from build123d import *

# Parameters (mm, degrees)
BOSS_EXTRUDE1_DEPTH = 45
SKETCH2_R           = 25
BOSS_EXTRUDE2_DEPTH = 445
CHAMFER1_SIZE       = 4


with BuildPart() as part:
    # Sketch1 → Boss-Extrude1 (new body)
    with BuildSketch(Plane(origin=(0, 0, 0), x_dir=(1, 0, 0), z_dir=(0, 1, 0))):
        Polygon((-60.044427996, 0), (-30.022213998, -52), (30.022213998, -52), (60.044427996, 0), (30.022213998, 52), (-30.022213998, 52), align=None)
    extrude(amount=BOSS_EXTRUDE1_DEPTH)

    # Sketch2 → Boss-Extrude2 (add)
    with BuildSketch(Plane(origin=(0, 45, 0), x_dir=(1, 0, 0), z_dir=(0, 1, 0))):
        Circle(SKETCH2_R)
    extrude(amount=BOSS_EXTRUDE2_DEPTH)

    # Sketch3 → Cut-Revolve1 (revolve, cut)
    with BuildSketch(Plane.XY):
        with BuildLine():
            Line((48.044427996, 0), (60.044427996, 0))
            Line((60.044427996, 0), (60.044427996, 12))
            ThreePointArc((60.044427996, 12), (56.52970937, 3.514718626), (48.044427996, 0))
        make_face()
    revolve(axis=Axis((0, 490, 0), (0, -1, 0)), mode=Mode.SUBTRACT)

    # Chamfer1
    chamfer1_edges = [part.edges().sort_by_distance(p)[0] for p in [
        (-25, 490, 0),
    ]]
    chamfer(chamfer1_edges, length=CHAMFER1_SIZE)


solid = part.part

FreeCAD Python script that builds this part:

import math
import FreeCAD as App
import Part
import Sketcher

V = App.Vector
Q = App.Units.Quantity


def edges_at(feature, points):
    """Names of the edges that pass closest to the given points."""
    edges = feature.Shape.Edges
    near = lambda p: min(range(len(edges)), key=lambda i: edges[i].distToShape(Part.Vertex(*p))[0])
    return sorted({f"Edge{near(p) + 1}" for p in points})

doc = App.newDocument("Part")
params = doc.addObject("Spreadsheet::Sheet", "Params")
for row, (alias, value) in enumerate([
    ("pad1_length", "45 mm"),
    ("sketch2_diameter", "50 mm"),
    ("pad2_length", "445 mm"),
    ("sketch3_radius", "12 mm"),
    ("groove_angle", "360 deg"),
    ("chamfer_size", "4 mm"),
], start=1):
    params.set(f"A{row}", alias)
    params.set(f"B{row}", "=" + value)
    params.setAlias(f"B{row}", alias)

body = doc.addObject("PartDesign::Body", "Body")

# Sketch on XZ plane
sketch1 = body.newObject("Sketcher::SketchObject", "Sketch")
sketch1.AttachmentSupport = (doc.getObject("XZ_Plane"), [""])
sketch1.MapMode = "FlatFace"
sketch1.addGeometry([
    Part.LineSegment(V(-60, 0, 0), V(-30, 52, 0)),  # 0
    Part.LineSegment(V(-30, 52, 0), V(30, 52, 0)),  # 1
    Part.LineSegment(V(30, 52, 0), V(60, 0, 0)),  # 2
    Part.LineSegment(V(60, 0, 0), V(30, -52, 0)),  # 3
    Part.LineSegment(V(30, -52, 0), V(-30, -52, 0)),  # 4
    Part.LineSegment(V(-30, -52, 0), V(-60, 0, 0)),  # 5
], False)
sketch1.addConstraint([
    Sketcher.Constraint("Coincident", 0, 2, 1, 1),
    Sketcher.Constraint("Coincident", 1, 2, 2, 1),
    Sketcher.Constraint("Coincident", 2, 2, 3, 1),
    Sketcher.Constraint("Coincident", 3, 2, 4, 1),
    Sketcher.Constraint("Coincident", 4, 2, 5, 1),
    Sketcher.Constraint("Coincident", 5, 2, 0, 1),
    Sketcher.Constraint("Horizontal", 1),
    Sketcher.Constraint("Horizontal", 4),
    Sketcher.Constraint("Symmetric", 0, 2, 3, 2, -1, 1),
    Sketcher.Constraint("Symmetric", 2, 2, 5, 2, -1, 1),
    Sketcher.Constraint("PointOnObject", 2, 2, -1),
    Sketcher.Constraint("Parallel", 2, 5),
    Sketcher.Constraint("Vertical", 1, 2, 3, 2),
    Sketcher.Constraint("Angle", 0, Q("60 deg")),
    Sketcher.Constraint("DistanceY", -1, 1, 0, 2, 52.0),
    Sketcher.Constraint("DistanceX", 1, 1, 1, 2, 60.044428),
])
pad1 = body.newObject("PartDesign::Pad", "Pad")
pad1.Profile = sketch1
pad1.setExpression("Length", "Params.pad1_length")
pad1.Reversed = True

# Sketch on XZ plane
sketch2 = body.newObject("Sketcher::SketchObject", "Sketch001")
sketch2.AttachmentSupport = (doc.getObject("XZ_Plane"), [""])
sketch2.MapMode = "FlatFace"
sketch2.AttachmentOffset = App.Placement(V(0, 0, -45), App.Rotation())
sketch2.addGeometry(Part.Circle(V(0, 0, 0), V(0, 0, 1), 25), False)
sketch2.addConstraint([
    Sketcher.Constraint("Coincident", 0, 3, -1, 1),
    Sketcher.Constraint("Diameter", 0, 50.0),
])
sketch2.setExpression("Constraints[1]", "Params.sketch2_diameter")
pad2 = body.newObject("PartDesign::Pad", "Pad001")
pad2.Profile = sketch2
pad2.setExpression("Length", "Params.pad2_length")
pad2.Reversed = True

# Sketch on XY plane
sketch3 = body.newObject("Sketcher::SketchObject", "Sketch002")
sketch3.AttachmentSupport = (doc.getObject("XY_Plane"), [""])
sketch3.MapMode = "FlatFace"
sketch3.addGeometry([
    Part.LineSegment(V(48, 0, 0), V(60, 0, 0)),
    Part.LineSegment(V(60, 0, 0), V(60, 12, 0)),
    Part.ArcOfCircle(Part.Circle(V(48, 12, 0), V(0, 0, 1), 12), math.radians(-90), math.radians(0)),
], False)
sketch3.addConstraint([
    Sketcher.Constraint("Coincident", 0, 2, 1, 1),
    Sketcher.Constraint("Tangent", 1, 2, 2, 2),
    Sketcher.Constraint("Tangent", 2, 1, 0, 1),
    Sketcher.Constraint("Horizontal", 0),
    Sketcher.Constraint("Vertical", 1),
    Sketcher.Constraint("PointOnObject", 0, 2, -1),
    Sketcher.Constraint("Radius", 2, 12.0),
    Sketcher.Constraint("DistanceX", -1, 1, 2, 3, 48.044428),
])
sketch3.setExpression("Constraints[6]", "Params.sketch3_radius")
groove = body.newObject("PartDesign::Groove", "Groove")
groove.Profile = sketch3
groove.ReferenceAxis = (sketch3, ["V_Axis"])
groove.setExpression("Angle", "Params.groove_angle")
doc.recompute()

chamfer = body.newObject("PartDesign::Chamfer", "Chamfer")
chamfer.Base = (groove, edges_at(groove, [(-25, 490, 0)]))
chamfer.setExpression("Size", "Params.chamfer_size")

doc.recompute()
